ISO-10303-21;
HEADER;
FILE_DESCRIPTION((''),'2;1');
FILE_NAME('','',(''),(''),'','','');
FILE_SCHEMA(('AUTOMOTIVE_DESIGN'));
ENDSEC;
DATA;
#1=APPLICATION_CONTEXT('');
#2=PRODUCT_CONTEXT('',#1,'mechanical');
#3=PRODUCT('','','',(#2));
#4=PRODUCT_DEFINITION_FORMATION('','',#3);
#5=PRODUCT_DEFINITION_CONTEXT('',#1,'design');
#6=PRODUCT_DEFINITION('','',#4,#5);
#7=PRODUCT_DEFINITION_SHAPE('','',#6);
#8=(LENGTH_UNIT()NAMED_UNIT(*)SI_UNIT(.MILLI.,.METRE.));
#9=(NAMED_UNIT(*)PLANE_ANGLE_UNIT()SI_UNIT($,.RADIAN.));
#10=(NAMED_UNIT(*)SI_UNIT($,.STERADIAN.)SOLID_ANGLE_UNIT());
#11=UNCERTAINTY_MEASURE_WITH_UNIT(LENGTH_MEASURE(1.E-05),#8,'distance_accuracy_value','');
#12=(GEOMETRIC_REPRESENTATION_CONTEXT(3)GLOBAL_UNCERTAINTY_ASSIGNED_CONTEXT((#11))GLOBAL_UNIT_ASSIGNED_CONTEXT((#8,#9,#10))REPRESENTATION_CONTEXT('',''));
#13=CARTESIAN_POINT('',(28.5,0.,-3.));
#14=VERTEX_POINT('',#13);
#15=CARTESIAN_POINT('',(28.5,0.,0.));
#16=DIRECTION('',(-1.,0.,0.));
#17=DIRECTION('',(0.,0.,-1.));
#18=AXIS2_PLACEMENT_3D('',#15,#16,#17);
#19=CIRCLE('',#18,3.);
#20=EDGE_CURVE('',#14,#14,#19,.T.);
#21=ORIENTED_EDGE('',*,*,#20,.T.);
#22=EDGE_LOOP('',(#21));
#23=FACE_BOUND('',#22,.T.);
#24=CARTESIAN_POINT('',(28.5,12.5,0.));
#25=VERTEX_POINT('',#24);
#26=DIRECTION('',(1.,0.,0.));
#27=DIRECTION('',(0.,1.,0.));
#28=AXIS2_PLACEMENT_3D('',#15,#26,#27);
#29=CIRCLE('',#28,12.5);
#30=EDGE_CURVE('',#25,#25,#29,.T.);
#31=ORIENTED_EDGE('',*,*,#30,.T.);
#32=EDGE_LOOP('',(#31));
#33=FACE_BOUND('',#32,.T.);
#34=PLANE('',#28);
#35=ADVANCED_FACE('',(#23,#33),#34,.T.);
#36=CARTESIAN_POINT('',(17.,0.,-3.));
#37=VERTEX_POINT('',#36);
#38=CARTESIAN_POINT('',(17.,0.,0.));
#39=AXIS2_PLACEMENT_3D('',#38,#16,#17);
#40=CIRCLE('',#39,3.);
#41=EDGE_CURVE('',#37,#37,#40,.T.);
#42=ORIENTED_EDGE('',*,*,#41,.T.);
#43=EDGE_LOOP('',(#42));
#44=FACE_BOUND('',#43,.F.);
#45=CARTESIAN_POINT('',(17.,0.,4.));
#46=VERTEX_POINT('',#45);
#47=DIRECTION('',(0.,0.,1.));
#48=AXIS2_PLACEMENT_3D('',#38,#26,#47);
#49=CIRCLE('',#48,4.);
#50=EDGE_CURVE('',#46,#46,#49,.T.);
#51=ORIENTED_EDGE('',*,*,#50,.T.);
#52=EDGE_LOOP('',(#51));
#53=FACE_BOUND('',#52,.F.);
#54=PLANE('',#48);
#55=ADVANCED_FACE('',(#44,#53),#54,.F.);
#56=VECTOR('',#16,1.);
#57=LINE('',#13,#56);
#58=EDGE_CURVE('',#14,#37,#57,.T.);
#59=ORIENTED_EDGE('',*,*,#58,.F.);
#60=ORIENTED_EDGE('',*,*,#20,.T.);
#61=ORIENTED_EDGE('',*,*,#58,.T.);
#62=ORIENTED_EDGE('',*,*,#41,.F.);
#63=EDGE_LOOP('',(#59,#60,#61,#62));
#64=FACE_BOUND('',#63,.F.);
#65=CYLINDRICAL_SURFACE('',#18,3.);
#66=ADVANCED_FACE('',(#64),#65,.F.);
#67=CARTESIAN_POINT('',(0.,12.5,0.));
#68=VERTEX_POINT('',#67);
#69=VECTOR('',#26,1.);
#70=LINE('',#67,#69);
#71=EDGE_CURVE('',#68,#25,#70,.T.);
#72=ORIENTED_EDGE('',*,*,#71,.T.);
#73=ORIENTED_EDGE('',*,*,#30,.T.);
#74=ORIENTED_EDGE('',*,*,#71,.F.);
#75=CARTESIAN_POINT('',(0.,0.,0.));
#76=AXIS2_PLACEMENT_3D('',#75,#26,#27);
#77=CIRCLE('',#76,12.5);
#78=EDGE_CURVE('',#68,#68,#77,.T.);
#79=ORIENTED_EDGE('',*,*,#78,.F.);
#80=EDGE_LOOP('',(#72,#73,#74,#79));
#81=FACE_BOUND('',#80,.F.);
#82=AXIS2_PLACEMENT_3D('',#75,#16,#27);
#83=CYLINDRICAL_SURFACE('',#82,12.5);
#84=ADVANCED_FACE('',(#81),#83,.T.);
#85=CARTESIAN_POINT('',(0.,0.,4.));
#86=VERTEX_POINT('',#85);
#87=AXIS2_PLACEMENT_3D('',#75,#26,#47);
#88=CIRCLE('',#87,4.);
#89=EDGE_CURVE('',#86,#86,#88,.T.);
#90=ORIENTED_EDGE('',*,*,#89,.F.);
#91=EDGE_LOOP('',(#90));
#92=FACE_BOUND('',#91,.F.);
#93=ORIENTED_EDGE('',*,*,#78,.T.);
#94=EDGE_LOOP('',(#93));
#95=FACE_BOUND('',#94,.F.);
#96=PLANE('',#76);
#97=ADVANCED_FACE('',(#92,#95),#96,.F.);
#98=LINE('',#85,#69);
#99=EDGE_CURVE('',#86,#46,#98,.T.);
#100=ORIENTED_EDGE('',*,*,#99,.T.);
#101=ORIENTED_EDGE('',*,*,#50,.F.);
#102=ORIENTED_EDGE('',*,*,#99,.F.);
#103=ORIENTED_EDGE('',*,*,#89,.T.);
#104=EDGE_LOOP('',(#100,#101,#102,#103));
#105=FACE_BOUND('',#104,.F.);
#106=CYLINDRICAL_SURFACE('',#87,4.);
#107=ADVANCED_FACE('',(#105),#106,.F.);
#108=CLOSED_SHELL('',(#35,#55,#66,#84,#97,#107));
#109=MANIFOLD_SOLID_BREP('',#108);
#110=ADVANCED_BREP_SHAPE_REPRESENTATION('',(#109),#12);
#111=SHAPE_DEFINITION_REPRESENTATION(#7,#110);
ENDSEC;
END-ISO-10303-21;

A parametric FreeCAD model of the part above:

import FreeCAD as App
import Part
import Sketcher

doc = App.newDocument("Part")
body = doc.addObject("PartDesign::Body", "Body")

# Sketch on YZ plane
sketch1 = body.newObject("Sketcher::SketchObject", "Sketch")
sketch1.AttachmentSupport = (doc.getObject("YZ_Plane"), [""])
sketch1.MapMode = "FlatFace"
sketch1.addGeometry(Part.Circle(App.Vector(0, 0, 0), App.Vector(0, 0, 1), 12.5), False)
sketch1.addConstraint(Sketcher.Constraint("Coincident", 0, 3, -1, 1))
sketch1.addConstraint(Sketcher.Constraint("Diameter", 0, 25.0))
pad1 = body.newObject("PartDesign::Pad", "Pad")
pad1.Profile = sketch1
pad1.Length = 28.5

# Sketch on YZ plane
sketch2 = body.newObject("Sketcher::SketchObject", "Sketch001")
sketch2.AttachmentSupport = (doc.getObject("YZ_Plane"), [""])
sketch2.MapMode = "FlatFace"
sketch2.AttachmentOffset = App.Placement(App.Vector(0, 0, 28.5), App.Rotation())
sketch2.addGeometry(Part.Circle(App.Vector(0, 0, 0), App.Vector(0, 0, 1), 3), False)
sketch2.addConstraint(Sketcher.Constraint("Coincident", 0, 3, -1, 1))
sketch2.addConstraint(Sketcher.Constraint("Diameter", 0, 6.0))
doc.recompute()
hole = body.newObject("PartDesign::Hole", "Hole")
hole.Profile = sketch2
hole.ThreadType = "None"
hole.Diameter = 6
hole.DepthType = "ThroughAll"

# Sketch on YZ plane
sketch3 = body.newObject("Sketcher::SketchObject", "Sketch002")
sketch3.AttachmentSupport = (doc.getObject("YZ_Plane"), [""])
sketch3.MapMode = "FlatFace"
sketch3.addGeometry(Part.Circle(App.Vector(0, 0, 0), App.Vector(0, 0, 1), 4), False)
sketch3.addConstraint(Sketcher.Constraint("Coincident", 0, 3, -1, 1))
sketch3.addConstraint(Sketcher.Constraint("Diameter", 0, 8.0))
doc.recompute()
hole2 = body.newObject("PartDesign::Hole", "Hole001")
hole2.Profile = sketch3
hole2.ThreadType = "None"
hole2.Diameter = 8
hole2.DepthType = "Dimension"
hole2.Depth = 17
hole2.DrillPoint = "Flat"
hole2.Reversed = True

doc.recompute()
